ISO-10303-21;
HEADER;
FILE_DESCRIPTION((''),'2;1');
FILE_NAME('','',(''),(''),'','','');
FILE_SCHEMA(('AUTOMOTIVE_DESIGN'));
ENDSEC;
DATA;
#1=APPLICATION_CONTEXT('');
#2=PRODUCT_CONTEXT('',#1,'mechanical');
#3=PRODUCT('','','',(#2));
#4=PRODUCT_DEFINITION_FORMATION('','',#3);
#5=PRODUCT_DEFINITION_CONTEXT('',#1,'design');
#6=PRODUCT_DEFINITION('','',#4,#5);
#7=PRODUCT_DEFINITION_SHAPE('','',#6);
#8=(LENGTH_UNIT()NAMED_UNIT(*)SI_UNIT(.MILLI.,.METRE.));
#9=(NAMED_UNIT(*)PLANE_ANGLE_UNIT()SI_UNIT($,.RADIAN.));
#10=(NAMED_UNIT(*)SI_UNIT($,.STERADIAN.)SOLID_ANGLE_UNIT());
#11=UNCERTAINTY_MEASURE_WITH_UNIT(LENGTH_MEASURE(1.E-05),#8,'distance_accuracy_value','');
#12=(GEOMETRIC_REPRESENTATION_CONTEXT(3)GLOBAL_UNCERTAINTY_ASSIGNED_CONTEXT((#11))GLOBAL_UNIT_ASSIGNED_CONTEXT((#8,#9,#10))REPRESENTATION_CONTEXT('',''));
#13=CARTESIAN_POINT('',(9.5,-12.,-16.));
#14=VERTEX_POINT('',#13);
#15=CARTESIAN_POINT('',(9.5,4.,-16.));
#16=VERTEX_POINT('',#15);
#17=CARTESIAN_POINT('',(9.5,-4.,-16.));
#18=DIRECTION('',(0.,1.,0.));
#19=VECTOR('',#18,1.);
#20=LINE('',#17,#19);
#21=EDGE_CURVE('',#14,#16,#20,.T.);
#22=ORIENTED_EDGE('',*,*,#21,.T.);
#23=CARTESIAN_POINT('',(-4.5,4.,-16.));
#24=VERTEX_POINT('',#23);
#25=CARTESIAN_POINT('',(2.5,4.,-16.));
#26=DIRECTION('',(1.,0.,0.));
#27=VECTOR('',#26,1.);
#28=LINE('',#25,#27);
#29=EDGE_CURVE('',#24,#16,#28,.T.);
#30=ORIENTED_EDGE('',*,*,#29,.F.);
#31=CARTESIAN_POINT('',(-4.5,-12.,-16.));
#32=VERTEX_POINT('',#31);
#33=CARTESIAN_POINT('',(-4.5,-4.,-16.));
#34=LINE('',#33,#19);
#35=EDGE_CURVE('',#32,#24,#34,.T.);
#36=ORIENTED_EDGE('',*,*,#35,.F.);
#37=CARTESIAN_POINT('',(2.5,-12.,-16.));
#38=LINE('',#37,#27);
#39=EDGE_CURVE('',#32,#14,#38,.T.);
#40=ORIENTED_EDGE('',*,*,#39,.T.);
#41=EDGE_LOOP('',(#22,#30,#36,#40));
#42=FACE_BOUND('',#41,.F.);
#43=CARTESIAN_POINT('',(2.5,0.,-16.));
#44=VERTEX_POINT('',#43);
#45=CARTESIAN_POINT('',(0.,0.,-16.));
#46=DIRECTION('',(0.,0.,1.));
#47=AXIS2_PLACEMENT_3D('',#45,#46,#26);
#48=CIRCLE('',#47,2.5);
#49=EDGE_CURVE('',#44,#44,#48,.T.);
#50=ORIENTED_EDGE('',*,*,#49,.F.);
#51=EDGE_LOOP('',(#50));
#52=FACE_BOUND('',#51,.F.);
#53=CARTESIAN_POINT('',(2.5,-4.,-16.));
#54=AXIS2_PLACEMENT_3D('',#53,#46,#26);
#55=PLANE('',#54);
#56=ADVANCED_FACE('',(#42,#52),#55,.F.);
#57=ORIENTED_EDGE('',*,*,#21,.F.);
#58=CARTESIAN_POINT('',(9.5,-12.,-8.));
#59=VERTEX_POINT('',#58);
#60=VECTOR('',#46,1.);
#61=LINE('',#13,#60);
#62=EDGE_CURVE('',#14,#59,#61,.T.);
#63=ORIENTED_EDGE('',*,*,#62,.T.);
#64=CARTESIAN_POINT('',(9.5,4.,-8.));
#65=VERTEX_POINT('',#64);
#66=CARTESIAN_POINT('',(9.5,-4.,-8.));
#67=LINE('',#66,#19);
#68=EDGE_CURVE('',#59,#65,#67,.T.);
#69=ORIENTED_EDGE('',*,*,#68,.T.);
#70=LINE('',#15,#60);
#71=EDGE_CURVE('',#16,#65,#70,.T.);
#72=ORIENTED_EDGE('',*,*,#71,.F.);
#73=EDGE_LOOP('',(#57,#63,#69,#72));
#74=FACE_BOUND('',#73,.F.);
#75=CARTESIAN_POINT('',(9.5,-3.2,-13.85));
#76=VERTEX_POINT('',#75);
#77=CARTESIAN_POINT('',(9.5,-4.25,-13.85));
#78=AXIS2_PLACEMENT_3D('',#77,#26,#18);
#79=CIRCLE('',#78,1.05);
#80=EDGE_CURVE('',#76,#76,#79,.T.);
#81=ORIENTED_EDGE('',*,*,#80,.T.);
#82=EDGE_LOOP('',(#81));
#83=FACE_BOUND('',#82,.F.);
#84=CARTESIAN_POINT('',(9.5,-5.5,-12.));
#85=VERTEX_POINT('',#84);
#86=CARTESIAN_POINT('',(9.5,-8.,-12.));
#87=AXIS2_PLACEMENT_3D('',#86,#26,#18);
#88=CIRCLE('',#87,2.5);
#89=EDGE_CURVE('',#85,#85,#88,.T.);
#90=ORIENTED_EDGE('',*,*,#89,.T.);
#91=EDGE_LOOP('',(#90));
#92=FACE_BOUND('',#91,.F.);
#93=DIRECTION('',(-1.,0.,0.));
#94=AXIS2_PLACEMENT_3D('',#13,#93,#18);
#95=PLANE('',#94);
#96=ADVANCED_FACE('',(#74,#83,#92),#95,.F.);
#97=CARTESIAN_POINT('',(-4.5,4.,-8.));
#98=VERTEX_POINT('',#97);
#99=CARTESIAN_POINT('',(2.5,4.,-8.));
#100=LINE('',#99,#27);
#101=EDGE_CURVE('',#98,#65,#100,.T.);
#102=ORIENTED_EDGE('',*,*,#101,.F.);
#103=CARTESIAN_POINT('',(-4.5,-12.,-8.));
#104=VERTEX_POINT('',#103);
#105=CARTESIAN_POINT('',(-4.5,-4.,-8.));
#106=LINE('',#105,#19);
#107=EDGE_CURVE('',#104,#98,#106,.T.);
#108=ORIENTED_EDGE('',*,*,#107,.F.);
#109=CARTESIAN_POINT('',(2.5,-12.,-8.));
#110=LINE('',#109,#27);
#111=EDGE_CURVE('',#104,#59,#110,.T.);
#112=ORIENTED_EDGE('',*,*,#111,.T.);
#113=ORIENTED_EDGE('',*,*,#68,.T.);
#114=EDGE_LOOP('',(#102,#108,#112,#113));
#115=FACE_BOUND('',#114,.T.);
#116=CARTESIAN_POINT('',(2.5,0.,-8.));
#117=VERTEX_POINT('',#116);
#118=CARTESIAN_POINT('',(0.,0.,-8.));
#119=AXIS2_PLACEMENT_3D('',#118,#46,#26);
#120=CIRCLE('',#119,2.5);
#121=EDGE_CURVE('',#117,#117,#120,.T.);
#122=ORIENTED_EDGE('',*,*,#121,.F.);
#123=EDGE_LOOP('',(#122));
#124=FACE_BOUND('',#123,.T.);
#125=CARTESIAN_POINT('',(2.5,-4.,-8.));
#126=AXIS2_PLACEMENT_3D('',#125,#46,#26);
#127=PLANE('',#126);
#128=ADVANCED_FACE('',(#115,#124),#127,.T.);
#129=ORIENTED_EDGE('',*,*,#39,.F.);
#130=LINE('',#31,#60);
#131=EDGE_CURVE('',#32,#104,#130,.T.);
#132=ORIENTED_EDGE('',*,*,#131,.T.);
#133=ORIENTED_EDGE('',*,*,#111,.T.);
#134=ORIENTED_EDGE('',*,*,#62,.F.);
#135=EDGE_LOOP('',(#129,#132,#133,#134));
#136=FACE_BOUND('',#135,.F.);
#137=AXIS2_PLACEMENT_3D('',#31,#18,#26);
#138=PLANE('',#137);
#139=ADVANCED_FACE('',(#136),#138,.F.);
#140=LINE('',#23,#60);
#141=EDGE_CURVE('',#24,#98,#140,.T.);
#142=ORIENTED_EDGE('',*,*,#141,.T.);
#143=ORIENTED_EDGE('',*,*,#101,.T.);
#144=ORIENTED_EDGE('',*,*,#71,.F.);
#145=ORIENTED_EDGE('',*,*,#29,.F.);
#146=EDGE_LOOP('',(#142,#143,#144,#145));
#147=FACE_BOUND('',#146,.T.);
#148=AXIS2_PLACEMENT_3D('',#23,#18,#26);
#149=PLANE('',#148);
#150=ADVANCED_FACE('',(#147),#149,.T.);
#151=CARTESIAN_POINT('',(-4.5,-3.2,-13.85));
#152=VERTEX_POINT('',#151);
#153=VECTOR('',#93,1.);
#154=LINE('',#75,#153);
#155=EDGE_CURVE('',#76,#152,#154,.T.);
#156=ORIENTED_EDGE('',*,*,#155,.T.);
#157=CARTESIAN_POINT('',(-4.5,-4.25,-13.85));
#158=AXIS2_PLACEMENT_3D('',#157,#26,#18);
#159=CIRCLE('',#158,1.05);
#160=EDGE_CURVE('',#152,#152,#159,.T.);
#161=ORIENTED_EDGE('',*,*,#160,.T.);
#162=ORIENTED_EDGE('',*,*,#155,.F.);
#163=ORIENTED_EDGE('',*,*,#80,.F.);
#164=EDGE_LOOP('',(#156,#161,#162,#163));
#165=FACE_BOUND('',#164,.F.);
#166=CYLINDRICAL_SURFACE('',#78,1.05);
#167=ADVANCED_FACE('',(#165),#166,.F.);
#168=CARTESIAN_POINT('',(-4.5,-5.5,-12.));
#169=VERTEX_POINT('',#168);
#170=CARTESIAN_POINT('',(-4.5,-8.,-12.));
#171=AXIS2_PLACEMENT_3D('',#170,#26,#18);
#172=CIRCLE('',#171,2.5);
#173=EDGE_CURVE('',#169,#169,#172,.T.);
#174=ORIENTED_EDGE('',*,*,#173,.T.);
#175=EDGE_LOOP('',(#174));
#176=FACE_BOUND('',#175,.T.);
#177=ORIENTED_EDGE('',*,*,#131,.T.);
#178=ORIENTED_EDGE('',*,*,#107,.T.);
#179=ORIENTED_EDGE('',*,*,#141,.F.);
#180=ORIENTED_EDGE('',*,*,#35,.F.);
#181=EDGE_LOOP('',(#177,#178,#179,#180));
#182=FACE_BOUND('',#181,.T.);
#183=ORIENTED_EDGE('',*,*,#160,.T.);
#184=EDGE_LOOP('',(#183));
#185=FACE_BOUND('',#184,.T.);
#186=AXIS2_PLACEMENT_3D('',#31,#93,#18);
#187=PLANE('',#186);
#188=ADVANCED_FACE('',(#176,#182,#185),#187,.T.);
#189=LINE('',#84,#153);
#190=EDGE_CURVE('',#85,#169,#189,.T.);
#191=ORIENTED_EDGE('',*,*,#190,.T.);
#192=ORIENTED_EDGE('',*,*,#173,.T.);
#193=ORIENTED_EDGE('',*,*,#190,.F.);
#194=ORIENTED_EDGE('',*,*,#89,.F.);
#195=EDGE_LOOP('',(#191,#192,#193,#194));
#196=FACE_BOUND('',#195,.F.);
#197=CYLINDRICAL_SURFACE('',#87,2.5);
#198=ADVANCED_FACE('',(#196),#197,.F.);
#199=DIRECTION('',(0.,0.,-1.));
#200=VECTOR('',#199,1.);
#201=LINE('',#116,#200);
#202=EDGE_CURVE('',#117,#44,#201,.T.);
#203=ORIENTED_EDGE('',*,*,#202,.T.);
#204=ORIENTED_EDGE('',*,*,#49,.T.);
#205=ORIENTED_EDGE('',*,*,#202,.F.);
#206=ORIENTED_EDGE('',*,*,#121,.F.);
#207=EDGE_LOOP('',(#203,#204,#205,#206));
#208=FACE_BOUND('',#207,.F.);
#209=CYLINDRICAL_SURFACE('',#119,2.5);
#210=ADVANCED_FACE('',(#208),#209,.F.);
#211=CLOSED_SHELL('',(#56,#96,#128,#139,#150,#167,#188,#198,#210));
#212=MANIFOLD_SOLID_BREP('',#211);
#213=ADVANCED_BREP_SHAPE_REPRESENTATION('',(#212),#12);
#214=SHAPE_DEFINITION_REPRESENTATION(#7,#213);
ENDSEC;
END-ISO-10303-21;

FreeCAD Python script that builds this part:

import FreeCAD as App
import Part
import Sketcher

V = App.Vector
Q = App.Units.Quantity

doc = App.newDocument("Part")
body = doc.addObject("PartDesign::Body", "Body")

sketch1 = body.newObject("Sketcher::SketchObject", "Sketch")
sketch1.AttachmentSupport = (doc.getObject("XY_Plane"), [""])
sketch1.MapMode = "FlatFace"
sketch1.AttachmentOffset = App.Placement(V(0, 0, -16), App.Rotation())
sketch1.addGeometry([
    Part.LineSegment(V(-4.5, 4, 0), V(-4.5, -12, 0)),
    Part.LineSegment(V(-4.5, -12, 0), V(9.5, -12, 0)),
    Part.LineSegment(V(9.5, -12, 0), V(9.5, 4, 0)),
    Part.LineSegment(V(9.5, 4, 0), V(-4.5, 4, 0)),
], False)
sketch1.addConstraint([
    Sketcher.Constraint("Coincident", 0, 2, 1, 1),
    Sketcher.Constraint("Coincident", 1, 2, 2, 1),
    Sketcher.Constraint("Coincident", 2, 2, 3, 1),
    Sketcher.Constraint("Coincident", 3, 2, 0, 1),
    Sketcher.Constraint("Vertical", 0),
    Sketcher.Constraint("Horizontal", 1),
    Sketcher.Constraint("Vertical", 2),
    Sketcher.Constraint("Horizontal", 3),
    Sketcher.Constraint("DistanceX", 1, 1, 1, 2, Q("14 mm")),
    Sketcher.Constraint("DistanceY", 0, 2, 0, 1, Q("16 mm")),
    Sketcher.Constraint("DistanceY", 0, 2, -1, 1, Q("12 mm")),
    Sketcher.Constraint("DistanceX", 0, 2, -1, 1, Q("4.5 mm")),
])
pad1 = body.newObject("PartDesign::Pad", "Pad")
pad1.Profile = sketch1
pad1.Length = 8

sketch2 = body.newObject("Sketcher::SketchObject", "Sketch001")
sketch2.AttachmentSupport = (doc.getObject("XY_Plane"), [""])
sketch2.MapMode = "FlatFace"
sketch2.AttachmentOffset = App.Placement(V(0, 0, -8), App.Rotation())
sketch2.addGeometry(Part.Circle(V(0, 0, 0), V(0, 0, 1), 2.5), False)
sketch2.addConstraint([
    Sketcher.Constraint("Coincident", 0, 3, -1, 1),
    Sketcher.Constraint("Diameter", 0, Q("5 mm")),
])
pocket1 = body.newObject("PartDesign::Pocket", "Pocket")
pocket1.Profile = sketch2
pocket1.Length = 8

sketch3 = body.newObject("Sketcher::SketchObject", "Sketch002")
sketch3.AttachmentSupport = (doc.getObject("YZ_Plane"), [""])
sketch3.MapMode = "FlatFace"
sketch3.AttachmentOffset = App.Placement(V(0, 0, 9.5), App.Rotation())
sketch3.addGeometry([
    Part.Circle(V(-8, -12, 0), V(0, 0, 1), 2.5),
    Part.Circle(V(-4.25, -13.85, 0), V(0, 0, 1), 1.05),
], False)
sketch3.addConstraint([
    Sketcher.Constraint("Diameter", 0, Q("5 mm")),
    Sketcher.Constraint("Diameter", 1, Q("2.1 mm")),
    Sketcher.Constraint("DistanceX", 0, 3, -1, 1, Q("8 mm")),
    Sketcher.Constraint("DistanceY", 0, 3, -1, 1, Q("12 mm")),
    Sketcher.Constraint("DistanceX", 1, 3, -1, 1, Q("4.25 mm")),
    Sketcher.Constraint("DistanceY", 1, 3, -1, 1, Q("13.85 mm")),
])
pocket2 = body.newObject("PartDesign::Pocket", "Pocket001")
pocket2.Profile = sketch3
pocket2.Length = 14

doc.recompute()
